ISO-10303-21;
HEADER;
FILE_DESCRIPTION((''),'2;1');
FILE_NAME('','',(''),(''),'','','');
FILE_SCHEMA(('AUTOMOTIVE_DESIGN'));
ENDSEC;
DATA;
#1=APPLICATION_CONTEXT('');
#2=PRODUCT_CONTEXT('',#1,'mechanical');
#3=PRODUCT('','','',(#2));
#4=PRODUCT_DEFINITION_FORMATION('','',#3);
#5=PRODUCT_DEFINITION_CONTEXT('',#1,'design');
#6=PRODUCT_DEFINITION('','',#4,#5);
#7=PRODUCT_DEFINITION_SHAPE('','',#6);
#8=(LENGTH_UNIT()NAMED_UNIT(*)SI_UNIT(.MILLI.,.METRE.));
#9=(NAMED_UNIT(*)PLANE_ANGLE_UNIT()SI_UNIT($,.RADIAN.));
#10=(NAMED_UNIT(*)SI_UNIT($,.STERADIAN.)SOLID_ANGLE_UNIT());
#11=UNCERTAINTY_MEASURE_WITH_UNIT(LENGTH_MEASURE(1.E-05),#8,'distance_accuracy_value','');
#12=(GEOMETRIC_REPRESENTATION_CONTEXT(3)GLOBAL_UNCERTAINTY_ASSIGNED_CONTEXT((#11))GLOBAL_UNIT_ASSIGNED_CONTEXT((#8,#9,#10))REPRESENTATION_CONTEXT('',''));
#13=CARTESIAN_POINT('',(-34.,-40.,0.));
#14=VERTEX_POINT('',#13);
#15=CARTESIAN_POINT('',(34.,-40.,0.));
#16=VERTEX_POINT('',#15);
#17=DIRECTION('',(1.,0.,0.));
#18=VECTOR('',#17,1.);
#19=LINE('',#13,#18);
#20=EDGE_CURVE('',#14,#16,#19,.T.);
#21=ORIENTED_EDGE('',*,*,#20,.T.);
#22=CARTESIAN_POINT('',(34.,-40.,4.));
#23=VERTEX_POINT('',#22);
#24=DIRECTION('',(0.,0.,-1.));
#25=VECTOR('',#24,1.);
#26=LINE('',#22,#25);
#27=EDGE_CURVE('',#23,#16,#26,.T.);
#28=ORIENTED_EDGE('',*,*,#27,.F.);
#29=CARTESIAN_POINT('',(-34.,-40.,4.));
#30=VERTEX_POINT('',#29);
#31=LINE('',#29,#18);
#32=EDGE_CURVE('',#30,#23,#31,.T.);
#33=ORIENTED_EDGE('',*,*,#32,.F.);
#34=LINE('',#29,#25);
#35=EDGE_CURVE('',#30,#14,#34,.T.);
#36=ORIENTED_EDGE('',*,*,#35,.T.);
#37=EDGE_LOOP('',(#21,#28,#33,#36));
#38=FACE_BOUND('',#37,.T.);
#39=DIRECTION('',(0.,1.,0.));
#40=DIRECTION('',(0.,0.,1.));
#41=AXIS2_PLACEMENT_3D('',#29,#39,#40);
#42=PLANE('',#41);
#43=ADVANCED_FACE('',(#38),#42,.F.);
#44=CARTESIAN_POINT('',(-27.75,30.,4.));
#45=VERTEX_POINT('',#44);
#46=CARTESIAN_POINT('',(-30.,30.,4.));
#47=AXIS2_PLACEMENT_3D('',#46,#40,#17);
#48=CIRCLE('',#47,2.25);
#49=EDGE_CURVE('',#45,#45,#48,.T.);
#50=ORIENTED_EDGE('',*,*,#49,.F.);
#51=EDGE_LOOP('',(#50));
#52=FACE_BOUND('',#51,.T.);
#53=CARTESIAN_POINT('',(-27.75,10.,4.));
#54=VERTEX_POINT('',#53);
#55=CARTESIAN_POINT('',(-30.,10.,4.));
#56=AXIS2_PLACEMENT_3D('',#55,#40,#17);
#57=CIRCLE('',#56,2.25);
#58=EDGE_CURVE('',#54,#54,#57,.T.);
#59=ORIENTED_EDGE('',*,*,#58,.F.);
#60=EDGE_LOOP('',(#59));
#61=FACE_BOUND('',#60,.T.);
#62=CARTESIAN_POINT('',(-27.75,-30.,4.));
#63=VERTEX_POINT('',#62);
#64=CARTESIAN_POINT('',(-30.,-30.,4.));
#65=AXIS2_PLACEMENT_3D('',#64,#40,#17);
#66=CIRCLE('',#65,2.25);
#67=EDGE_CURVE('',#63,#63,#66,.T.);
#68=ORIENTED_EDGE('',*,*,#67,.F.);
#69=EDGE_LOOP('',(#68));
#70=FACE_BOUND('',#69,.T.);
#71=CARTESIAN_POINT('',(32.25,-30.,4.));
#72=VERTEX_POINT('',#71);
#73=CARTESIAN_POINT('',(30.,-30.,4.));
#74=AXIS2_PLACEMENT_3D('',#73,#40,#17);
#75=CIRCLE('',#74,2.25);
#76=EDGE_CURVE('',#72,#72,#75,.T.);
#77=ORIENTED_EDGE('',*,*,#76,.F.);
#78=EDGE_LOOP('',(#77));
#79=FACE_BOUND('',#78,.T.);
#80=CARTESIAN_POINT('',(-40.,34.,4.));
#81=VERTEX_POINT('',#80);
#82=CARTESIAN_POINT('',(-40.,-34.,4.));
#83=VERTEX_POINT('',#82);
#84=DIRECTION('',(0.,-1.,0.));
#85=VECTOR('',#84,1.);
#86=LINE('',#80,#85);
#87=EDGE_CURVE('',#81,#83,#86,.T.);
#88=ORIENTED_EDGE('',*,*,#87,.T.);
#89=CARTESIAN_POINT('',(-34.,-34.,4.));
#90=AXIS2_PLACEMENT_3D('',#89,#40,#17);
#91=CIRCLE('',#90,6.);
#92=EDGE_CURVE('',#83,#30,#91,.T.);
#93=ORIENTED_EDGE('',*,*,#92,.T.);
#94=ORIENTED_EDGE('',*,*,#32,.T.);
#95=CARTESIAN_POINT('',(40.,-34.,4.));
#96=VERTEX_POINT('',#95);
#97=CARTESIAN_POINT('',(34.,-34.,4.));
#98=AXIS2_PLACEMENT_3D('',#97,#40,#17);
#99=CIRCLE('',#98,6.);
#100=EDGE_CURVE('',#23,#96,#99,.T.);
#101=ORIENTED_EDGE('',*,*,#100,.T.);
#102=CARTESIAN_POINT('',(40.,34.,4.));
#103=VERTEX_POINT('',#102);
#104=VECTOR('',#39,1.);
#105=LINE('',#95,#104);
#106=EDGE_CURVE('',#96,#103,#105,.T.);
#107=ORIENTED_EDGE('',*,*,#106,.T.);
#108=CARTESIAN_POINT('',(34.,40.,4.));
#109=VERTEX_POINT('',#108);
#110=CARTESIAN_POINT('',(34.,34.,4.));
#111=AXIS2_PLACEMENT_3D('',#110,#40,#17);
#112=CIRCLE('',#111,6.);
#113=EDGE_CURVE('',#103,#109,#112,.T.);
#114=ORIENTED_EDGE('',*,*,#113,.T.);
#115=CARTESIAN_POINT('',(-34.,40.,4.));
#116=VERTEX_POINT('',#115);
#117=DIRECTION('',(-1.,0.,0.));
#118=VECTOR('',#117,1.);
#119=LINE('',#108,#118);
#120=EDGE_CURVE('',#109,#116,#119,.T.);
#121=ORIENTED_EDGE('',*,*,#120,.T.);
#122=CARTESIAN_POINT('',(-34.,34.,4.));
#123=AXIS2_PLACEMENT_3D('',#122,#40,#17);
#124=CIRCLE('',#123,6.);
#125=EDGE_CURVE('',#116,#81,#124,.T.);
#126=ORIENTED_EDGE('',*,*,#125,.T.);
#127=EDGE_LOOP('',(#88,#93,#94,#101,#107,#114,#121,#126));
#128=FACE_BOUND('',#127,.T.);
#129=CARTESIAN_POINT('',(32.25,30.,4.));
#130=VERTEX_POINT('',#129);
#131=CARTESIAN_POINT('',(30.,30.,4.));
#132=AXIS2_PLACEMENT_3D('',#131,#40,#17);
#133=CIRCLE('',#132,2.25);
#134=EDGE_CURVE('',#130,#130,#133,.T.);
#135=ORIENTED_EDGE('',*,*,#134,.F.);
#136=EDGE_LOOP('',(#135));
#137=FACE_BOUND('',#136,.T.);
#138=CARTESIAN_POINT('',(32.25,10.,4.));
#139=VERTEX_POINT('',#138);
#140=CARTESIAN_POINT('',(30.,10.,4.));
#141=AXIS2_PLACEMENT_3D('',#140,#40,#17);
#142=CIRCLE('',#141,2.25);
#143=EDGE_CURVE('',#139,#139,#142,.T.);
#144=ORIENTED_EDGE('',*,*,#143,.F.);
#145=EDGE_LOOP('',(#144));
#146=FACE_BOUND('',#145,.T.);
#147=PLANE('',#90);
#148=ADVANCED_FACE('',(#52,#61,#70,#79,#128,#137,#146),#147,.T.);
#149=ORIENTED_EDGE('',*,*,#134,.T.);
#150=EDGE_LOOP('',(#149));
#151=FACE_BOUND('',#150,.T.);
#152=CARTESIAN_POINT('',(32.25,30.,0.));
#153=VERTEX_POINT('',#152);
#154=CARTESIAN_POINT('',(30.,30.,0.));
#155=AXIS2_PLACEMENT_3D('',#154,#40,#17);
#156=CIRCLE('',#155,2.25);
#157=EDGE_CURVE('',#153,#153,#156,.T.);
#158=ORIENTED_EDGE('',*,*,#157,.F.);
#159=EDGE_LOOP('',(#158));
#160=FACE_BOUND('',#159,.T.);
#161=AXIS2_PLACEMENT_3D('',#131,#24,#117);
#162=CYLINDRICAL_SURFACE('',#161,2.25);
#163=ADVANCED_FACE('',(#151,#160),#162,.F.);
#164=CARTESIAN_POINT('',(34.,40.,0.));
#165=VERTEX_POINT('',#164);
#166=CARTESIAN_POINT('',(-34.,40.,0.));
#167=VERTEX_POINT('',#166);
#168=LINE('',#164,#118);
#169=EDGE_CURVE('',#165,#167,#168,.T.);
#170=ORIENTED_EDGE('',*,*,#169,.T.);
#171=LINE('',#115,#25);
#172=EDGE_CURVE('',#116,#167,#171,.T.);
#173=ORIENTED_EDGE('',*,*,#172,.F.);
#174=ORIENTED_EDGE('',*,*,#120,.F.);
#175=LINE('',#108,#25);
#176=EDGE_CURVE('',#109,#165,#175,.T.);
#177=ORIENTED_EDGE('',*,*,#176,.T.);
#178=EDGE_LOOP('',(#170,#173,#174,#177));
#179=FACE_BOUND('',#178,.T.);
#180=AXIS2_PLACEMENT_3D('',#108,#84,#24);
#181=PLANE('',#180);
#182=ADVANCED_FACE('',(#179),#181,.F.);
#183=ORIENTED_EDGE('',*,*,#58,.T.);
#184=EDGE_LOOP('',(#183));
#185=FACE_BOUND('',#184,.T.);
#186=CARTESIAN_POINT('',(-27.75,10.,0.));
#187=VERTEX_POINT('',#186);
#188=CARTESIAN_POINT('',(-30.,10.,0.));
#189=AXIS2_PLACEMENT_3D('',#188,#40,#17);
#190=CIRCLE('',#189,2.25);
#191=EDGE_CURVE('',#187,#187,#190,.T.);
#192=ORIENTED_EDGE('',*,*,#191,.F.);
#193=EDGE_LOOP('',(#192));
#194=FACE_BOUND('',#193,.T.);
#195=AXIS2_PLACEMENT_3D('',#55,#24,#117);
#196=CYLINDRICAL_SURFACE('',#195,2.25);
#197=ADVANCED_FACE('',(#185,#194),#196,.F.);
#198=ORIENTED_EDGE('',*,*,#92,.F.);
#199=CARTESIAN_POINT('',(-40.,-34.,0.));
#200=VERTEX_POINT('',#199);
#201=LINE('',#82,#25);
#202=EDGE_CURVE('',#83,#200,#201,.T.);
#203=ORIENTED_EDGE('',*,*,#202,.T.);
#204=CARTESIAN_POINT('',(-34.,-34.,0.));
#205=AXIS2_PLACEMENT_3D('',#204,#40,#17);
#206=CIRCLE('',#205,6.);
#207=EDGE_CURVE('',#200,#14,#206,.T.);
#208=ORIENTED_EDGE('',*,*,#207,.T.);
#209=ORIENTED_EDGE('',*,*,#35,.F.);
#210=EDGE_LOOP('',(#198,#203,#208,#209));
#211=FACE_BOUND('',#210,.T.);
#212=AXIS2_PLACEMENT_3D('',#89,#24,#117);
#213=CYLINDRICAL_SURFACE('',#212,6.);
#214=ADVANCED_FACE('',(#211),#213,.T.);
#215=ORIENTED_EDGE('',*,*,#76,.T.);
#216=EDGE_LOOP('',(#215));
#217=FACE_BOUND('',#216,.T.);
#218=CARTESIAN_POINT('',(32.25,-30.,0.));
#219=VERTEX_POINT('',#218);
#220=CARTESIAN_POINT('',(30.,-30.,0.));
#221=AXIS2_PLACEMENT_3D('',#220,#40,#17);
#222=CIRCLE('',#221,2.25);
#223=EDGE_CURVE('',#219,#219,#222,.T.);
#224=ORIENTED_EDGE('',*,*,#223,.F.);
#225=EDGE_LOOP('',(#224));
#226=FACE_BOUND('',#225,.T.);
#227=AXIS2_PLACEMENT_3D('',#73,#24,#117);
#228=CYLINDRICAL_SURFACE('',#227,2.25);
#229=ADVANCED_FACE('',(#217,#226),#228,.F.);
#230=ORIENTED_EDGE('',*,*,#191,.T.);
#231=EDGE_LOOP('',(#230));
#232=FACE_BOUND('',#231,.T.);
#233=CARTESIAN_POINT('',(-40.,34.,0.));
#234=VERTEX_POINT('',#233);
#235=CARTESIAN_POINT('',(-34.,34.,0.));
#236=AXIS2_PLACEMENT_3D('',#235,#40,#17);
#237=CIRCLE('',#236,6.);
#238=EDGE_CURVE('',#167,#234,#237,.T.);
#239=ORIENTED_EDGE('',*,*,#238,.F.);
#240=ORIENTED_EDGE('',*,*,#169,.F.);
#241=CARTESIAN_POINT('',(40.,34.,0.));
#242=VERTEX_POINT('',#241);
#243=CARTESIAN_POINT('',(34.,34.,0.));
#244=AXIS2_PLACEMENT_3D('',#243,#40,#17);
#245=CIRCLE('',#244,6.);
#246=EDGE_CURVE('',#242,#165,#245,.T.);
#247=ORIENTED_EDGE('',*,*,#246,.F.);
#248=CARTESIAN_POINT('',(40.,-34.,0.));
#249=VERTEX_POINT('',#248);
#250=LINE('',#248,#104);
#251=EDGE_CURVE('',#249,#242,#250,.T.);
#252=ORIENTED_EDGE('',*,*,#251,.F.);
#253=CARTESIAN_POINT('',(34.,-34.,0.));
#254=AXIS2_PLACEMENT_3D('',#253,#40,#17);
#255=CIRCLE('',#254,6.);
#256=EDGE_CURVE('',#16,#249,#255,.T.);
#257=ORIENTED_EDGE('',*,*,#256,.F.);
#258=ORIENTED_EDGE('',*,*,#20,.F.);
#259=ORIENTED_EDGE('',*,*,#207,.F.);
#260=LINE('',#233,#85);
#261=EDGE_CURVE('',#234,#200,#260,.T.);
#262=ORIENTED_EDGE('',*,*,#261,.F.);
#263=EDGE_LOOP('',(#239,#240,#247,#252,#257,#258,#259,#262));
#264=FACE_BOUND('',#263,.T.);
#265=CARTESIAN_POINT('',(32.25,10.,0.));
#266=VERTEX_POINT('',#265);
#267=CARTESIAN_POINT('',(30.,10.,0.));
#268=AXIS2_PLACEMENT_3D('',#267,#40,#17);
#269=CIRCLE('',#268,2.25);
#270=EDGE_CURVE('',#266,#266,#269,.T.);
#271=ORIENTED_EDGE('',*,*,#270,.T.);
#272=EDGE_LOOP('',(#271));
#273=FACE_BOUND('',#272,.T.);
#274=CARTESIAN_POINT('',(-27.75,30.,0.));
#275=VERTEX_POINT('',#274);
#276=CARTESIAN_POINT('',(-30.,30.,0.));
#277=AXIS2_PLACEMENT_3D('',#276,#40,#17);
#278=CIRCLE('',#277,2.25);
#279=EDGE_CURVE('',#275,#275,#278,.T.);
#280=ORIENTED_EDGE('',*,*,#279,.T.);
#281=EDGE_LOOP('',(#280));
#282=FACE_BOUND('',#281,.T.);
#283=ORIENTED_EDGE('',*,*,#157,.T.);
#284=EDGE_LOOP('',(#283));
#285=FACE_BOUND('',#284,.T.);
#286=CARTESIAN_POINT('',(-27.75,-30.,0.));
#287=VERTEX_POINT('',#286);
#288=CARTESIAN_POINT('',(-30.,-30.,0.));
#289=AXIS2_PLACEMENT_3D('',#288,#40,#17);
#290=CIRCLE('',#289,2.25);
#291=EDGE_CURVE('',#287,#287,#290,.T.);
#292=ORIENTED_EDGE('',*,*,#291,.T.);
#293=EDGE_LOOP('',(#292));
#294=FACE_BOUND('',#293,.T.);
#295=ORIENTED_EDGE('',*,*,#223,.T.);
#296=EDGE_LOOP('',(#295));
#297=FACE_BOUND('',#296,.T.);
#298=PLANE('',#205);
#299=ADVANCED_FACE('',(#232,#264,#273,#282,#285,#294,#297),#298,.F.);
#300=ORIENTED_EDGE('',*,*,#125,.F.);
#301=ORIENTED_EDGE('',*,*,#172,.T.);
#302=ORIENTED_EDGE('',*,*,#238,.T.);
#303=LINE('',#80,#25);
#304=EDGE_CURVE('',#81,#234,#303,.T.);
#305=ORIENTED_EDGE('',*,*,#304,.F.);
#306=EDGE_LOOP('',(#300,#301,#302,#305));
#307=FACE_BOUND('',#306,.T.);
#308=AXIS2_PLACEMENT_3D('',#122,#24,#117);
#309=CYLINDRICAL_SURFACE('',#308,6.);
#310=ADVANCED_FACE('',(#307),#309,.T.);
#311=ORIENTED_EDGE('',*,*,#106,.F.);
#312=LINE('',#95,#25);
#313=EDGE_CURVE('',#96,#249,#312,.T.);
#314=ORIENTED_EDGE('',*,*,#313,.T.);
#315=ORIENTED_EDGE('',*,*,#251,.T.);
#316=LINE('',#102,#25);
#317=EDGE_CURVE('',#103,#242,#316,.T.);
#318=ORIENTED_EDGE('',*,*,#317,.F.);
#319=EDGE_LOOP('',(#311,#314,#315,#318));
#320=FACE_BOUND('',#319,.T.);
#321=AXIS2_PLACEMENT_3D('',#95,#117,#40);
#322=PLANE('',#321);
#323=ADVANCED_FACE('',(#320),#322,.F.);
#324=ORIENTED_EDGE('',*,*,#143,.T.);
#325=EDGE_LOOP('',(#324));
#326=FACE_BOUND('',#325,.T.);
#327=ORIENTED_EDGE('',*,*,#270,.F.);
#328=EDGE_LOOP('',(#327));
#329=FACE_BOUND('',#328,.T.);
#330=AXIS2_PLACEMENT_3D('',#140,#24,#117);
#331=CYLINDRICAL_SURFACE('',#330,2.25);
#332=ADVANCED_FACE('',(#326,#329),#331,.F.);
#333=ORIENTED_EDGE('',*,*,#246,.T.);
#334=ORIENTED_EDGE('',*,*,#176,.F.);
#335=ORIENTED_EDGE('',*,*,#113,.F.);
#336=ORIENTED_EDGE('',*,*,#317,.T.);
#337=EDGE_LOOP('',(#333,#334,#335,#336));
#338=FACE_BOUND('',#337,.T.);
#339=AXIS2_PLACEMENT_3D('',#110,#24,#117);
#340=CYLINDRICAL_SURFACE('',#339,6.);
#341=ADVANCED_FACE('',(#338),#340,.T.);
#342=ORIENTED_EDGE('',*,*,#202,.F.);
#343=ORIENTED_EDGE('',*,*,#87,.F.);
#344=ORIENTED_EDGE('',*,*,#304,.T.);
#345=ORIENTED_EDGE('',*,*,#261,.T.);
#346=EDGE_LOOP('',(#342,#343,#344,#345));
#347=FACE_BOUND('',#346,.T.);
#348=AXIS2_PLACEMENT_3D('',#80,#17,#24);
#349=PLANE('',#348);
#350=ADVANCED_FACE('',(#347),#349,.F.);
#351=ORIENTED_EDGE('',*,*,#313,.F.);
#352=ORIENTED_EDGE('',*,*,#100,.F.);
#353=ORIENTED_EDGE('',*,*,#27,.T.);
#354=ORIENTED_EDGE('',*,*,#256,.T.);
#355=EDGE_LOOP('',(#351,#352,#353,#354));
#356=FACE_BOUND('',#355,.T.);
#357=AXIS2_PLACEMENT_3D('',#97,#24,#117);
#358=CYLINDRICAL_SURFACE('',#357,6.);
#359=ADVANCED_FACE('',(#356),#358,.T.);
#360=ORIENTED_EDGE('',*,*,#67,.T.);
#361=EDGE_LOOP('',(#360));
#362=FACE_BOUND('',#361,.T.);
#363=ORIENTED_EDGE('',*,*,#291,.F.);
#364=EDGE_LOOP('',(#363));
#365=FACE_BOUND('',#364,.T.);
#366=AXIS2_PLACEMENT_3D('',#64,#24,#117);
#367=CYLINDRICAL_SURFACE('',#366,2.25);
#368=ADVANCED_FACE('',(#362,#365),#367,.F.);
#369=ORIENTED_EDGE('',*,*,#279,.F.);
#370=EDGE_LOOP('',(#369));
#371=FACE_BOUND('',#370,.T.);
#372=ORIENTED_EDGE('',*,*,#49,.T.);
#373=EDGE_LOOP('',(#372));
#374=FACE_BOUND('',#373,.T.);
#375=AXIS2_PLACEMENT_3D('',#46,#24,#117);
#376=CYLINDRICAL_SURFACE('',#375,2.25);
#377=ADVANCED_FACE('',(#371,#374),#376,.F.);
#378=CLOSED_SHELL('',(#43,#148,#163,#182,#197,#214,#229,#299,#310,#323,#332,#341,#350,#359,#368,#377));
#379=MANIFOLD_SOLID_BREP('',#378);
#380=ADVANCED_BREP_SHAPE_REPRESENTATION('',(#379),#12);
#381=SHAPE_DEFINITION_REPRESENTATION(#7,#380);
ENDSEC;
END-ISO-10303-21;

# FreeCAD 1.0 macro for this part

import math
import FreeCAD as App
import Part
import Sketcher
Q = App.Units.Quantity

doc = App.newDocument("Part")
params = doc.addObject("Spreadsheet::Sheet", "Params")
for row, (alias, value) in enumerate([
    ("sketch1_radius", "6 mm"),
    ("sketch1_diameter", "4.5 mm"),
    ("sketch1_width", "68 mm"),
    ("pad1_length", "4 mm"),
], start=1):
    params.set(f"A{row}", alias)
    params.set(f"B{row}", "=" + value)
    params.setAlias(f"B{row}", alias)

body = doc.addObject("PartDesign::Body", "Body")

# Sketch on XY plane
sketch1 = doc.addObject("Sketcher::SketchObject", "Sketch")
body.addObject(sketch1)
sketch1.AttachmentSupport = (doc.XY_Plane, [""])
sketch1.MapMode = "FlatFace"
sketch1.addGeometry([
    Part.LineSegment(App.Vector(-34, -40, 0), App.Vector(34, -40, 0)),  # 0
    Part.ArcOfCircle(Part.Circle(App.Vector(34, -34, 0), App.Vector(0, 0, 1), 6), math.radians(-90), math.radians(0)),  # 1
    Part.LineSegment(App.Vector(40, -34, 0), App.Vector(40, 34, 0)),  # 2
    Part.ArcOfCircle(Part.Circle(App.Vector(34, 34, 0), App.Vector(0, 0, 1), 6), math.radians(0), math.radians(90)),  # 3
    Part.LineSegment(App.Vector(34, 40, 0), App.Vector(-34, 40, 0)),  # 4
    Part.ArcOfCircle(Part.Circle(App.Vector(-34, 34, 0), App.Vector(0, 0, 1), 6), math.radians(90), math.radians(180)),  # 5
    Part.LineSegment(App.Vector(-40, 34, 0), App.Vector(-40, -34, 0)),  # 6
    Part.ArcOfCircle(Part.Circle(App.Vector(-34, -34, 0), App.Vector(0, 0, 1), 6), math.radians(180), math.radians(270)),  # 7
    Part.Circle(App.Vector(-30, -30, 0), App.Vector(0, 0, 1), 2.25),  # 8
    Part.Circle(App.Vector(30, -30, 0), App.Vector(0, 0, 1), 2.25),  # 9
    Part.Circle(App.Vector(-30, 10, 0), App.Vector(0, 0, 1), 2.25),  # 10
    Part.Circle(App.Vector(-30, 30, 0), App.Vector(0, 0, 1), 2.25),  # 11
    Part.Circle(App.Vector(30, 10, 0), App.Vector(0, 0, 1), 2.25),  # 12
    Part.Circle(App.Vector(30, 30, 0), App.Vector(0, 0, 1), 2.25),  # 13
], False)
sketch1.addConstraint([
    Sketcher.Constraint("Tangent", 0, 2, 1, 1),
    Sketcher.Constraint("Tangent", 1, 2, 2, 1),
    Sketcher.Constraint("Tangent", 2, 2, 3, 1),
    Sketcher.Constraint("Tangent", 3, 2, 4, 1),
    Sketcher.Constraint("Tangent", 4, 2, 5, 1),
    Sketcher.Constraint("Tangent", 5, 2, 6, 1),
    Sketcher.Constraint("Tangent", 6, 2, 7, 1),
    Sketcher.Constraint("Tangent", 7, 2, 0, 1),
    Sketcher.Constraint("Horizontal", 0),
    Sketcher.Constraint("Vertical", 2),
    Sketcher.Constraint("Horizontal", 4),
    Sketcher.Constraint("Vertical", 6),
    Sketcher.Constraint("Equal", 1, 3),
    Sketcher.Constraint("Equal", 3, 5),
    Sketcher.Constraint("Equal", 5, 7),
    Sketcher.Constraint("Equal", 8, 9),
    Sketcher.Constraint("Equal", 9, 10),
    Sketcher.Constraint("Equal", 10, 11),
    Sketcher.Constraint("Equal", 11, 12),
    Sketcher.Constraint("Equal", 12, 13),
    Sketcher.Constraint("Symmetric", 1, 3, 5, 3, -1, 1),
    Sketcher.Constraint("Symmetric", 9, 3, 11, 3, -1, 1),
    Sketcher.Constraint("Symmetric", 8, 3, 13, 3, -1, 1),
    Sketcher.Constraint("Symmetric", 8, 3, 9, 3, -2),
    Sketcher.Constraint("Symmetric", 10, 3, 12, 3, -2),
    Sketcher.Constraint("Vertical", 8, 3, 10, 3),
    Sketcher.Constraint("Equal", 4, 2),
    Sketcher.Constraint("Radius", 1, Q("6 mm")),
    Sketcher.Constraint("Diameter", 8, Q("4.5 mm")),
    Sketcher.Constraint("DistanceX", 0, 1, 0, 2, Q("68 mm")),
    Sketcher.Constraint("DistanceX", 8, 3, -1, 1, Q("30 mm")),
    Sketcher.Constraint("DistanceY", 8, 3, -1, 1, Q("30 mm")),
    Sketcher.Constraint("DistanceY", -1, 1, 10, 3, Q("10 mm")),
])
sketch1.setExpression("Constraints[27]", "Params.sketch1_radius")
sketch1.setExpression("Constraints[28]", "Params.sketch1_diameter")
sketch1.setExpression("Constraints[29]", "Params.sketch1_width")
pad1 = doc.addObject("PartDesign::Pad", "Pad")
body.addObject(pad1)
pad1.Profile = sketch1
pad1.setExpression("Length", "Params.pad1_length")

doc.recompute()
